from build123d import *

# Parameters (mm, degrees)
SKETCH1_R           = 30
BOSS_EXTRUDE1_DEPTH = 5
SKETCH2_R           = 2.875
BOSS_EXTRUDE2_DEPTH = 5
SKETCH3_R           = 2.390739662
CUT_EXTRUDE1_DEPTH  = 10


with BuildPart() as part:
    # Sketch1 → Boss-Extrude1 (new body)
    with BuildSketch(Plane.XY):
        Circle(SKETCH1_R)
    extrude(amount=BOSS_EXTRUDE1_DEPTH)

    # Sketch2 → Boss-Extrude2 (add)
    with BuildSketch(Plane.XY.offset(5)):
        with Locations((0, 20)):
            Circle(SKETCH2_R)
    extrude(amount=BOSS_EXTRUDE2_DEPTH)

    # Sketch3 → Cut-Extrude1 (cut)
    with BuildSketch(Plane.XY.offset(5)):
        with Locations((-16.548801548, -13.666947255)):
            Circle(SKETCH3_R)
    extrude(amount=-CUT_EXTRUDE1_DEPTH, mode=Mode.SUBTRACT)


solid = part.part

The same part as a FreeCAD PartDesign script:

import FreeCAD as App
import Part
import Sketcher

V = App.Vector

doc = App.newDocument("Part")
body = doc.addObject("PartDesign::Body", "Body")

# Sketch on XY plane
sketch1 = body.newObject("Sketcher::SketchObject", "Sketch")
sketch1.AttachmentSupport = (doc.getObject("XY_Plane"), [""])
sketch1.MapMode = "FlatFace"
sketch1.addGeometry(Part.Circle(V(0, 0, 0), V(0, 0, 1), 30), False)
sketch1.addConstraint([
    Sketcher.Constraint("Coincident", 0, 3, -1, 1),
    Sketcher.Constraint("Diameter", 0, 60.0),
])
pad1 = body.newObject("PartDesign::Pad", "Pad")
pad1.Profile = sketch1
pad1.Length = 5

# Sketch on XY plane
sketch2 = body.newObject("Sketcher::SketchObject", "Sketch001")
sketch2.AttachmentSupport = (doc.getObject("XY_Plane"), [""])
sketch2.MapMode = "FlatFace"
sketch2.AttachmentOffset = App.Placement(V(0, 0, 5), App.Rotation())
sketch2.addGeometry(Part.Circle(V(0, 20, 0), V(0, 0, 1), 2.875), False)
sketch2.addConstraint([
    Sketcher.Constraint("PointOnObject", 0, 3, -2),
    Sketcher.Constraint("Diameter", 0, 5.75),
    Sketcher.Constraint("DistanceY", -1, 1, 0, 3, 20.0),
])
pad2 = body.newObject("PartDesign::Pad", "Pad001")
pad2.Profile = sketch2
pad2.Length = 5

# Sketch on XY plane
sketch3 = body.newObject("Sketcher::SketchObject", "Sketch002")
sketch3.AttachmentSupport = (doc.getObject("XY_Plane"), [""])
sketch3.MapMode = "FlatFace"
sketch3.AttachmentOffset = App.Placement(V(0, 0, 5), App.Rotation())
sketch3.addGeometry(Part.Circle(V(-16.548802, -13.666947, 0), V(0, 0, 1), 2.39074), False)
sketch3.addConstraint([
    Sketcher.Constraint("Diameter", 0, 4.781479),
    Sketcher.Constraint("DistanceX", 0, 3, -1, 1, 16.548802),
    Sketcher.Constraint("DistanceY", 0, 3, -1, 1, 13.666947),
])
pocket1 = body.newObject("PartDesign::Pocket", "Pocket")
pocket1.Profile = sketch3
pocket1.Length = 10

doc.recompute()
